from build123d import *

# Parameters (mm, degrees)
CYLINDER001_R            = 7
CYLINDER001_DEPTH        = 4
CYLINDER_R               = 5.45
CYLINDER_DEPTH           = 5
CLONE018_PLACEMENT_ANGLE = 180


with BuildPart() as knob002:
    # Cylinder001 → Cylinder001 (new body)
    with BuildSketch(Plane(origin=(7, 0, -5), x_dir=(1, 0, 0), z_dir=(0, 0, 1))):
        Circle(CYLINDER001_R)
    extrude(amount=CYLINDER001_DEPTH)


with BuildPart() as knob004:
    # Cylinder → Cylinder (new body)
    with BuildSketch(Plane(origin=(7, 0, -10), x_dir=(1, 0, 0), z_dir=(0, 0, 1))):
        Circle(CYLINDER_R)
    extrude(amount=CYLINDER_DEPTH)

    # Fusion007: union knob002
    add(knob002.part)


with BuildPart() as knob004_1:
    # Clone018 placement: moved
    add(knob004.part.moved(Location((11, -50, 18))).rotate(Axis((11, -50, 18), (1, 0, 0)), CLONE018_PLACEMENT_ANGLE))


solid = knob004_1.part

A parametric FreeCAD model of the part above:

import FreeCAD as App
import Part
import Sketcher

V = App.Vector

doc = App.newDocument("Part")
body = doc.addObject("PartDesign::Body", "Body")

# Sketch on XY plane
sketch1 = body.newObject("Sketcher::SketchObject", "Sketch")
sketch1.AttachmentSupport = (doc.getObject("XY_Plane"), [""])
sketch1.MapMode = "FlatFace"
sketch1.AttachmentOffset = App.Placement(V(0, 0, -5), App.Rotation())
sketch1.addGeometry(Part.Circle(V(7, 0, 0), V(0, 0, 1), 7), False)
sketch1.addConstraint([
    Sketcher.Constraint("PointOnObject", 0, 3, -1),
    Sketcher.Constraint("Diameter", 0, 14.0),
    Sketcher.Constraint("DistanceX", -1, 1, 0, 3, 7.0),
])
pad1 = body.newObject("PartDesign::Pad", "Pad")
pad1.Profile = sketch1
pad1.Length = 4
body2 = doc.addObject("PartDesign::Body", "Body001")

# Sketch on XY plane
sketch2 = body2.newObject("Sketcher::SketchObject", "Sketch001")
sketch2.AttachmentSupport = (doc.getObject("XY_Plane001"), [""])
sketch2.MapMode = "FlatFace"
sketch2.AttachmentOffset = App.Placement(V(0, 0, -10), App.Rotation())
sketch2.addGeometry(Part.Circle(V(7, 0, 0), V(0, 0, 1), 5), False)
sketch2.addConstraint([
    Sketcher.Constraint("PointOnObject", 0, 3, -1),
    Sketcher.Constraint("Diameter", 0, 10.9),
    Sketcher.Constraint("DistanceX", -1, 1, 0, 3, 7.0),
])
pad2 = body2.newObject("PartDesign::Pad", "Pad001")
pad2.Profile = sketch2
pad2.Length = 5
doc.recompute()

boolean = body2.newObject("PartDesign::Boolean", "Boolean")
boolean.Type = "Fuse"
boolean.addObjects([body])
body3 = doc.addObject("PartDesign::Body", "Body002")
doc.recompute()

body2.Placement = App.Placement(V(11, -50, 18), App.Rotation(V(1, 0, 0), 180))
boolean2 = body3.newObject("PartDesign::Boolean", "Boolean001")
boolean2.Type = "Fuse"
boolean2.addObjects([body2])

doc.recompute()
